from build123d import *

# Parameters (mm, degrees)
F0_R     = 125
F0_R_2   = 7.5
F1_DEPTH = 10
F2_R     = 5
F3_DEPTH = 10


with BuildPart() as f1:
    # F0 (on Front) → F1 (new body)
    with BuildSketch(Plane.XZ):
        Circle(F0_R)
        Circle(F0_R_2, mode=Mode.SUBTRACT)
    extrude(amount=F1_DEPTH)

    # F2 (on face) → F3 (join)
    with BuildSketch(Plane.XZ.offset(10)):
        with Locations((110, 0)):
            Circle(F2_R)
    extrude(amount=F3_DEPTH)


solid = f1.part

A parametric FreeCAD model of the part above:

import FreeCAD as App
import Part
import Sketcher

V = App.Vector
Q = App.Units.Quantity

doc = App.newDocument("Part")
body = doc.addObject("PartDesign::Body", "Body")

# Sketch on XZ plane
sketch1 = doc.addObject("Sketcher::SketchObject", "Sketch")
body.addObject(sketch1)
sketch1.AttachmentSupport = (doc.XZ_Plane, [""])
sketch1.MapMode = "FlatFace"
sketch1.addGeometry(Part.Circle(V(0, 0, 0), V(0, 0, 1), 125), False)
sketch1.addGeometry(Part.Circle(V(0, 0, 0), V(0, 0, 1), 8), False)
sketch1.addConstraint(Sketcher.Constraint("Coincident", 0, 3, -1, 1))
sketch1.addConstraint(Sketcher.Constraint("Coincident", 1, 3, -1, 1))
sketch1.addConstraint(Sketcher.Constraint("Diameter", 0, Q("250 mm")))
sketch1.addConstraint(Sketcher.Constraint("Diameter", 1, Q("15 mm")))
pad1 = doc.addObject("PartDesign::Pad", "Pad")
body.addObject(pad1)
pad1.Profile = sketch1
pad1.Length = 10

# Sketch on XZ plane
sketch2 = doc.addObject("Sketcher::SketchObject", "Sketch001")
body.addObject(sketch2)
sketch2.AttachmentSupport = (doc.XZ_Plane, [""])
sketch2.MapMode = "FlatFace"
sketch2.AttachmentOffset = App.Placement(V(0, 0, 10), App.Rotation())
sketch2.addGeometry(Part.Circle(V(110, 0, 0), V(0, 0, 1), 5), False)
sketch2.addConstraint(Sketcher.Constraint("PointOnObject", 0, 3, -1))
sketch2.addConstraint(Sketcher.Constraint("Diameter", 0, Q("10 mm")))
sketch2.addConstraint(Sketcher.Constraint("DistanceX", -1, 1, 0, 3, Q("110 mm")))
pad2 = doc.addObject("PartDesign::Pad", "Pad001")
body.addObject(pad2)
pad2.Profile = sketch2
pad2.Length = 10

doc.recompute()
